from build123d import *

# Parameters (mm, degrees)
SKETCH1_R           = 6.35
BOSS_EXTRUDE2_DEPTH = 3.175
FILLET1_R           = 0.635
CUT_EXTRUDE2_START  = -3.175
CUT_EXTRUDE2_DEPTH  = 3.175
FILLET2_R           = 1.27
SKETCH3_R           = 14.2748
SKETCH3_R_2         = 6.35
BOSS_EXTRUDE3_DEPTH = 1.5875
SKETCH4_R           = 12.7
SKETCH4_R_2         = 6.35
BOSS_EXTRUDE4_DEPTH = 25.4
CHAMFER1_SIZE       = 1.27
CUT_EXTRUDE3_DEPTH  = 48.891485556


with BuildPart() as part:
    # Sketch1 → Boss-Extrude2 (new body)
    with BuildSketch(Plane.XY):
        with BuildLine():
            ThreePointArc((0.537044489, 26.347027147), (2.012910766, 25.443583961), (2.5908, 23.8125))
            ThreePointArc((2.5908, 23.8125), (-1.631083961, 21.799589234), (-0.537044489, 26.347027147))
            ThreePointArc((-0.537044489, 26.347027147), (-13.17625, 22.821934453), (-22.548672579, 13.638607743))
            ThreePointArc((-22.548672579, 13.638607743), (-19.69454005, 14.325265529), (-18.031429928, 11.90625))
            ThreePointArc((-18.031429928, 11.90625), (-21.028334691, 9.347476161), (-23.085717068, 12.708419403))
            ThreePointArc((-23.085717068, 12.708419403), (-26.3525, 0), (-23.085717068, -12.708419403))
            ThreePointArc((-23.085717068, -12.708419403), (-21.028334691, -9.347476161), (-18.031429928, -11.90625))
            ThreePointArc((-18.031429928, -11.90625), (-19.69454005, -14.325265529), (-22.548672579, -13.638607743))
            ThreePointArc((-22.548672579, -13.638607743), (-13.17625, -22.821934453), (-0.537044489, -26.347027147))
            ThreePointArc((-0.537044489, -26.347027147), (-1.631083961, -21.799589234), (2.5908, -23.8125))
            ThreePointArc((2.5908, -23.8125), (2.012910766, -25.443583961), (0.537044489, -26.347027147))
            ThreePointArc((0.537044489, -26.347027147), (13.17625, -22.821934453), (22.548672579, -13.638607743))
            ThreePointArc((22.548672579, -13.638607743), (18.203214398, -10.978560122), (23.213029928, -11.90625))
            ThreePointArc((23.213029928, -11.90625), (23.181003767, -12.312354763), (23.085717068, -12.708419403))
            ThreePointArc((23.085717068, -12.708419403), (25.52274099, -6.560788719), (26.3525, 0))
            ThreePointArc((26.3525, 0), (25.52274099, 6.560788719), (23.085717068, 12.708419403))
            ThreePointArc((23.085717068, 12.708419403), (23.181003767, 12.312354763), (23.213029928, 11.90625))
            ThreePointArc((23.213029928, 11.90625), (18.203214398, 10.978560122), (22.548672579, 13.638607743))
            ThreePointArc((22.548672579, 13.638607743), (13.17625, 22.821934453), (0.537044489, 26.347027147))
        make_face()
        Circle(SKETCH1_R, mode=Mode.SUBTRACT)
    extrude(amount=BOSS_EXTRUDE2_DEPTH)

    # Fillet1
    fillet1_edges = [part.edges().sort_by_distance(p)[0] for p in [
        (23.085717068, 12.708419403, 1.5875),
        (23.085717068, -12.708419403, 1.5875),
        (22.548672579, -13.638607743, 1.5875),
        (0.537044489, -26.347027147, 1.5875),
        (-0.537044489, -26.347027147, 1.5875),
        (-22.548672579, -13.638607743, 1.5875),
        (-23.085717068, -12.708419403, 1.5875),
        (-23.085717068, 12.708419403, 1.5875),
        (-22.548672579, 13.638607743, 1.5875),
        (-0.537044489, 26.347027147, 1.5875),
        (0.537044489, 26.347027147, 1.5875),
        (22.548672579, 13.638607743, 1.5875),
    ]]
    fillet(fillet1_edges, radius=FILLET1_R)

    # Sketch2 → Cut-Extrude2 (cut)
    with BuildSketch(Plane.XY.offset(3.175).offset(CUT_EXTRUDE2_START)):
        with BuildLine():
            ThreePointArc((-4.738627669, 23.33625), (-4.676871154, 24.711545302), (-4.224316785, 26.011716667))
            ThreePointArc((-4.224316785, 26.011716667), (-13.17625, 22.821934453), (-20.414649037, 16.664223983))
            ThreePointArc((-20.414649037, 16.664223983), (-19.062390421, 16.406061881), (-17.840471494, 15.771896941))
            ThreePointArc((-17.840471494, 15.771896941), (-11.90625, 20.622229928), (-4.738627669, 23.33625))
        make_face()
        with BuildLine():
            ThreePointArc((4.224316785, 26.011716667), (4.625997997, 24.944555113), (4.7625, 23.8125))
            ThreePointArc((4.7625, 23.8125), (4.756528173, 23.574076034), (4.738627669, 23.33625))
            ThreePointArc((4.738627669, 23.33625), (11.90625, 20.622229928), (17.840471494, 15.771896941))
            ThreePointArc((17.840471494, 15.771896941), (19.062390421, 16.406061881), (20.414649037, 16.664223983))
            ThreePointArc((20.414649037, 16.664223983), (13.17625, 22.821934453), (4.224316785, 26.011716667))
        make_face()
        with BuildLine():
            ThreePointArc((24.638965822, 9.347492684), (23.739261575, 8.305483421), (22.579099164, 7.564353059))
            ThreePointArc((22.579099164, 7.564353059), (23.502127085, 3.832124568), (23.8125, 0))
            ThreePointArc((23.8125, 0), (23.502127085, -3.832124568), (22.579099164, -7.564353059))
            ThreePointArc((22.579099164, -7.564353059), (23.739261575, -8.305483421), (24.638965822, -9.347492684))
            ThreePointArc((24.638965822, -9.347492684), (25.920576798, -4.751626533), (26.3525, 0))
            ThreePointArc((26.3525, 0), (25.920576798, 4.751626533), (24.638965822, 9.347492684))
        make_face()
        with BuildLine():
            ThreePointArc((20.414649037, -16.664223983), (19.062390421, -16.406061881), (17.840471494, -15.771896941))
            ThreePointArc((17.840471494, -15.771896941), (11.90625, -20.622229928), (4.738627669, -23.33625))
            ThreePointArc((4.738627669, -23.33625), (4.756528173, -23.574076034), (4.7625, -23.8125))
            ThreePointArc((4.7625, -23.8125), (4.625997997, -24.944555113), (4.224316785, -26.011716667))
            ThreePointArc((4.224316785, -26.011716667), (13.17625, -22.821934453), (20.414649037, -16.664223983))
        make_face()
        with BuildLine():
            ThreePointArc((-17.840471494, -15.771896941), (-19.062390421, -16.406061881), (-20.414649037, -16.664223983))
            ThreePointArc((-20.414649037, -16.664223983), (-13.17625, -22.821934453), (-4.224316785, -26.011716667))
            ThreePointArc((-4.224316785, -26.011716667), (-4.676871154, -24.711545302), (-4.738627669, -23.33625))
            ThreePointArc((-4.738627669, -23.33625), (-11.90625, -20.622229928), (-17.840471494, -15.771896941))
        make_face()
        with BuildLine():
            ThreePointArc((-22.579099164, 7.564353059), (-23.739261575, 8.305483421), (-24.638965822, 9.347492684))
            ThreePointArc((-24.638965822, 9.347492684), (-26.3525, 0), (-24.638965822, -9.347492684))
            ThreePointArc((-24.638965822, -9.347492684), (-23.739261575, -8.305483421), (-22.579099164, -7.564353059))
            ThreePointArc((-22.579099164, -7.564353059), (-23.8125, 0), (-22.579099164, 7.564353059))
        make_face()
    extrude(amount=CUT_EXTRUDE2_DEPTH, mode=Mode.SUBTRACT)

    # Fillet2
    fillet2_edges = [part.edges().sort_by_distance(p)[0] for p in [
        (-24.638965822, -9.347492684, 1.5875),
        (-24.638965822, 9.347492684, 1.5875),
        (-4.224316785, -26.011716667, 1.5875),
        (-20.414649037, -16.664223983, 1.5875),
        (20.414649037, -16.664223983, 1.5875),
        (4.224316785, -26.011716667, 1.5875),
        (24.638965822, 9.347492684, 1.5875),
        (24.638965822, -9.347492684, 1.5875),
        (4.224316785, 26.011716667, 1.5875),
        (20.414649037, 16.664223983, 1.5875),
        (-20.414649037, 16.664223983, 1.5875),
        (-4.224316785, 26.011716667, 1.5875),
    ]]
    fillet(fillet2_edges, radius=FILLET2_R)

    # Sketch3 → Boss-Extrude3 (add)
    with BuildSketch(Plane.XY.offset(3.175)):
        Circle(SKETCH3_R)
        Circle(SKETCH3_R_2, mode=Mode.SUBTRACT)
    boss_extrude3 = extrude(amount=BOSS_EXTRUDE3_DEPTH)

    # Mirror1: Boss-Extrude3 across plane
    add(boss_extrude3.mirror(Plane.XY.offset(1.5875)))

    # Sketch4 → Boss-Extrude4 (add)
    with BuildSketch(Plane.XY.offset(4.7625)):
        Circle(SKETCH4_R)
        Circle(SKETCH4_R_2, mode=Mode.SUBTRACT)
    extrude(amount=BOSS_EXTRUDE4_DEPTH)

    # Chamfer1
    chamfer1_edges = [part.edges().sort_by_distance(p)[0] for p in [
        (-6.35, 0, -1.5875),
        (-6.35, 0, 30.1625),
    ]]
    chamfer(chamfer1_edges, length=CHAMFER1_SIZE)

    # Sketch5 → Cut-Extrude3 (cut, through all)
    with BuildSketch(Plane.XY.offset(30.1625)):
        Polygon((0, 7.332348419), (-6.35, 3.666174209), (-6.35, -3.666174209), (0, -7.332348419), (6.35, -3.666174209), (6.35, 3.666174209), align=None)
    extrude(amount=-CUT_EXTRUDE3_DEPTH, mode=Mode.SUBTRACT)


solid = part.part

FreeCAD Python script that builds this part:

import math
import FreeCAD as App
import Part
import Sketcher

V = App.Vector
Q = App.Units.Quantity


def edges_at(feature, points):
    """Names of the edges that pass closest to the given points."""
    edges = feature.Shape.Edges
    near = lambda p: min(range(len(edges)), key=lambda i: edges[i].distToShape(Part.Vertex(*p))[0])
    return sorted({f"Edge{near(p) + 1}" for p in points})


def add_polygon(sketch, points):
    """Adds a closed chain of lines whose ends are joined by coincident constraints."""
    first, n = sketch.GeometryCount, len(points)
    for a, b in zip(points, points[1:] + points[:1]):
        sketch.addGeometry(Part.LineSegment(App.Vector(*a, 0), App.Vector(*b, 0)), False)
    for i in range(n):
        sketch.addConstraint(Sketcher.Constraint("Coincident", first + i, 2, first + (i + 1) % n, 1))

doc = App.newDocument("Part")
body = doc.addObject("PartDesign::Body", "Body")

sketch1 = body.newObject("Sketcher::SketchObject", "Sketch")
sketch1.AttachmentSupport = (doc.getObject("XY_Plane"), [""])
sketch1.MapMode = "FlatFace"
sketch1.addGeometry([
    Part.ArcOfCircle(Part.Circle(V(0, 23.8, 0), V(0, 0, 1), 2.6), math.radians(0), math.radians(78)),
    Part.ArcOfCircle(Part.Circle(V(0, 23.8, 0), V(0, 0, 1), 2.6), math.radians(102), math.radians(360)),
    Part.ArcOfCircle(Part.Circle(V(0, 0, 0), V(0, 0, 1), 26.4), math.radians(91), math.radians(149)),
    Part.ArcOfCircle(Part.Circle(V(-20.6, 11.9, 0), V(0, 0, 1), 2.6), math.radians(0), math.radians(138)),
    Part.ArcOfCircle(Part.Circle(V(-20.6, 11.9, 0), V(0, 0, 1), 2.6), math.radians(162), math.radians(360)),
    Part.ArcOfCircle(Part.Circle(V(0, 0, 0), V(0, 0, 1), 26.4), math.radians(151), math.radians(209)),
    Part.ArcOfCircle(Part.Circle(V(-20.6, -11.9, 0), V(0, 0, 1), 2.6), math.radians(0), math.radians(198)),
    Part.ArcOfCircle(Part.Circle(V(-20.6, -11.9, 0), V(0, 0, 1), 2.6), math.radians(-138), math.radians(0)),
    Part.ArcOfCircle(Part.Circle(V(0, 0, 0), V(0, 0, 1), 26.4), math.radians(-149), math.radians(-91)),
    Part.ArcOfCircle(Part.Circle(V(0, -23.8, 0), V(0, 0, 1), 2.6), math.radians(0), math.radians(258)),
    Part.ArcOfCircle(Part.Circle(V(0, -23.8, 0), V(0, 0, 1), 2.6), math.radians(-78), math.radians(0)),
    Part.ArcOfCircle(Part.Circle(V(0, 0, 0), V(0, 0, 1), 26.4), math.radians(-89), math.radians(-31)),
    Part.ArcOfCircle(Part.Circle(V(20.6, -11.9, 0), V(0, 0, 1), 2.6), math.radians(0), math.radians(318)),
    Part.ArcOfCircle(Part.Circle(V(20.6, -11.9, 0), V(0, 0, 1), 2.6), math.radians(-18.04), math.radians(0)),
    Part.ArcOfCircle(Part.Circle(V(0, 0, 0), V(0, 0, 1), 26.4), math.radians(-29), math.radians(0)),
    Part.ArcOfCircle(Part.Circle(V(0, 0, 0), V(0, 0, 1), 26.4), math.radians(0), math.radians(29)),
    Part.ArcOfCircle(Part.Circle(V(20.6, 11.9, 0), V(0, 0, 1), 2.6), math.radians(0), math.radians(18.04)),
    Part.ArcOfCircle(Part.Circle(V(20.6, 11.9, 0), V(0, 0, 1), 2.6), math.radians(42), math.radians(360)),
    Part.ArcOfCircle(Part.Circle(V(0, 0, 0), V(0, 0, 1), 26.4), math.radians(31), math.radians(89)),
    Part.Circle(V(0, 0, 0), V(0, 0, 1), 6.3),
], False)
sketch1.addConstraint([
    Sketcher.Constraint("Tangent", 0, 1, 1, 2),
    Sketcher.Constraint("Coincident", 1, 1, 2, 1),
    Sketcher.Constraint("Coincident", 2, 2, 3, 2),
    Sketcher.Constraint("Tangent", 3, 1, 4, 2),
    Sketcher.Constraint("Coincident", 4, 1, 5, 1),
    Sketcher.Constraint("Coincident", 5, 2, 6, 2),
    Sketcher.Constraint("Tangent", 6, 1, 7, 2),
    Sketcher.Constraint("Coincident", 7, 1, 8, 1),
    Sketcher.Constraint("Coincident", 8, 2, 9, 2),
    Sketcher.Constraint("Tangent", 9, 1, 10, 2),
    Sketcher.Constraint("Coincident", 10, 1, 11, 1),
    Sketcher.Constraint("Coincident", 11, 2, 12, 2),
    Sketcher.Constraint("Tangent", 12, 1, 13, 2),
    Sketcher.Constraint("Coincident", 13, 1, 14, 1),
    Sketcher.Constraint("Tangent", 14, 2, 15, 1),
    Sketcher.Constraint("Coincident", 15, 2, 16, 2),
    Sketcher.Constraint("Tangent", 16, 1, 17, 2),
    Sketcher.Constraint("Coincident", 17, 1, 18, 1),
    Sketcher.Constraint("Coincident", 18, 2, 0, 2),
    Sketcher.Constraint("Coincident", 2, 3, -1, 1),
    Sketcher.Constraint("Coincident", 5, 3, -1, 1),
    Sketcher.Constraint("Coincident", 8, 3, -1, 1),
    Sketcher.Constraint("Coincident", 11, 3, -1, 1),
    Sketcher.Constraint("Coincident", 14, 3, -1, 1),
    Sketcher.Constraint("Coincident", 18, 3, -1, 1),
    Sketcher.Constraint("Coincident", 19, 3, -1, 1),
    Sketcher.Constraint("Equal", 0, 1),
    Sketcher.Constraint("Equal", 1, 3),
    Sketcher.Constraint("Equal", 3, 4),
    Sketcher.Constraint("Equal", 2, 5),
    Sketcher.Constraint("Equal", 4, 6),
    Sketcher.Constraint("Equal", 6, 7),
    Sketcher.Constraint("Equal", 5, 8),
    Sketcher.Constraint("Equal", 7, 9),
    Sketcher.Constraint("Equal", 9, 10),
    Sketcher.Constraint("Equal", 8, 11),
    Sketcher.Constraint("Equal", 10, 12),
    Sketcher.Constraint("Equal", 12, 13),
    Sketcher.Constraint("Equal", 11, 14),
    Sketcher.Constraint("Equal", 14, 15),
    Sketcher.Constraint("Equal", 13, 16),
    Sketcher.Constraint("Equal", 16, 17),
    Sketcher.Constraint("Equal", 15, 18),
    Sketcher.Constraint("Symmetric", 0, 3, 9, 3, -1, 1),
    Sketcher.Constraint("Symmetric", 3, 3, 12, 3, -1, 1),
    Sketcher.Constraint("Symmetric", 6, 3, 16, 3, -1, 1),
    Sketcher.Constraint("Symmetric", 6, 3, 12, 3, -2),
    Sketcher.Constraint("Symmetric", 0, 1, 9, 1, -1),
    Sketcher.Constraint("PointOnObject", 14, 2, -1),
    Sketcher.Constraint("Horizontal", 1, 3, 0, 1),
    Sketcher.Constraint("Horizontal", 17, 3, 3, 1),
    Sketcher.Constraint("Horizontal", 13, 3, 6, 1),
    Sketcher.Constraint("Horizontal", 6, 1, 12, 1),
    Sketcher.Constraint("Horizontal", 3, 1, 16, 1),
    Sketcher.Constraint("Diameter", 19, Q("0.5 in")),
    Sketcher.Constraint("Radius", 0, Q("0.102 in")),
    Sketcher.Constraint("Radius", 2, Q("1.0375 in")),
    Sketcher.Constraint("DistanceY", -1, 1, 0, 3, Q("0.9375 in")),
    Sketcher.Constraint("DistanceY", -1, 1, 3, 3, Q("0.46875 in")),
    Sketcher.Constraint("DistanceX", 3, 3, -1, 1, 20.62223),
])
pad1 = body.newObject("PartDesign::Pad", "Pad")
pad1.Profile = sketch1
pad1.Length = Q("0.125 in")
doc.recompute()

fillet = body.newObject("PartDesign::Fillet", "Fillet")
fillet.Base = (pad1, edges_at(pad1, [
    (23.086, 12.708, 1.587),
    (23.086, -12.708, 1.587),
    (22.549, -13.639, 1.587),
    (0.537, -26.347, 1.587),
    (-0.537, -26.347, 1.587),
    (-22.549, -13.639, 1.587),
    (-23.086, -12.708, 1.587),
    (-23.086, 12.708, 1.587),
    (-22.549, 13.639, 1.587),
    (-0.537, 26.347, 1.587),
    (0.537, 26.347, 1.587),
    (22.549, 13.639, 1.587),
]))
fillet.Radius = Q("0.025 in")

sketch2 = body.newObject("Sketcher::SketchObject", "Sketch001")
sketch2.AttachmentSupport = (doc.getObject("XY_Plane"), [""])
sketch2.MapMode = "FlatFace"
sketch2.addGeometry([
    Part.ArcOfCircle(Part.Circle(V(0, 23.81, 0), V(0, 0, 1), 4.76), math.radians(152), math.radians(186)),
    Part.ArcOfCircle(Part.Circle(V(0, 0, 0), V(0, 0, 1), 26.35), math.radians(99), math.radians(141)),
    Part.ArcOfCircle(Part.Circle(V(-20.62, 11.91, 0), V(0, 0, 1), 4.76), math.radians(54), math.radians(88)),
    Part.ArcOfCircle(Part.Circle(V(0, 0, 0), V(0, 0, 1), 23.81), math.radians(101), math.radians(139)),
    Part.ArcOfCircle(Part.Circle(V(0, 23.81, 0), V(0, 0, 1), 4.76), math.radians(0), math.radians(28)),
    Part.ArcOfCircle(Part.Circle(V(0, 23.81, 0), V(0, 0, 1), 4.76), math.radians(-5.74), math.radians(0)),
    Part.ArcOfCircle(Part.Circle(V(0, 0, 0), V(0, 0, 1), 23.81), math.radians(41), math.radians(79)),
    Part.ArcOfCircle(Part.Circle(V(20.62, 11.91, 0), V(0, 0, 1), 4.76), math.radians(92), math.radians(126)),
    Part.ArcOfCircle(Part.Circle(V(0, 0, 0), V(0, 0, 1), 26.35), math.radians(39), math.radians(81)),
    Part.ArcOfCircle(Part.Circle(V(20.62, 11.91, 0), V(0, 0, 1), 4.76), math.radians(-66), math.radians(-32)),
    Part.ArcOfCircle(Part.Circle(V(0, 0, 0), V(0, 0, 1), 23.81), math.radians(0), math.radians(18.52)),
    Part.ArcOfCircle(Part.Circle(V(0, 0, 0), V(0, 0, 1), 23.81), math.radians(-18.52), math.radians(0)),
    Part.ArcOfCircle(Part.Circle(V(20.62, -11.91, 0), V(0, 0, 1), 4.76), math.radians(32), math.radians(66)),
    Part.ArcOfCircle(Part.Circle(V(0, 0, 0), V(0, 0, 1), 26.35), math.radians(-21), math.radians(0)),
    Part.ArcOfCircle(Part.Circle(V(0, 0, 0), V(0, 0, 1), 26.35), math.radians(0), math.radians(21)),
    Part.ArcOfCircle(Part.Circle(V(20.62, -11.91, 0), V(0, 0, 1), 4.76), math.radians(-126), math.radians(-92)),
    Part.ArcOfCircle(Part.Circle(V(0, 0, 0), V(0, 0, 1), 23.81), math.radians(-79), math.radians(-41)),
    Part.ArcOfCircle(Part.Circle(V(0, -23.81, 0), V(0, 0, 1), 4.76), math.radians(0), math.radians(5.74)),
    Part.ArcOfCircle(Part.Circle(V(0, -23.81, 0), V(0, 0, 1), 4.76), math.radians(-28), math.radians(0)),
    Part.ArcOfCircle(Part.Circle(V(0, 0, 0), V(0, 0, 1), 26.35), math.radians(-81), math.radians(-39)),
    Part.ArcOfCircle(Part.Circle(V(-20.62, -11.91, 0), V(0, 0, 1), 4.76), math.radians(-88), math.radians(-54)),
    Part.ArcOfCircle(Part.Circle(V(0, 0, 0), V(0, 0, 1), 26.35), math.radians(-141), math.radians(-99)),
    Part.ArcOfCircle(Part.Circle(V(0, -23.81, 0), V(0, 0, 1), 4.76), math.radians(174), math.radians(208)),
    Part.ArcOfCircle(Part.Circle(V(0, 0, 0), V(0, 0, 1), 23.81), math.radians(-139), math.radians(-101)),
    Part.ArcOfCircle(Part.Circle(V(-20.62, 11.91, 0), V(0, 0, 1), 4.76), math.radians(-148), math.radians(-114)),
    Part.ArcOfCircle(Part.Circle(V(0, 0, 0), V(0, 0, 1), 26.35), math.radians(159), math.radians(201)),
    Part.ArcOfCircle(Part.Circle(V(-20.62, -11.91, 0), V(0, 0, 1), 4.76), math.radians(114), math.radians(148)),
    Part.ArcOfCircle(Part.Circle(V(0, 0, 0), V(0, 0, 1), 23.81), math.radians(161), math.radians(199)),
], False)
sketch2.addConstraint([
    Sketcher.Constraint("Coincident", 0, 1, 1, 1),
    Sketcher.Constraint("Coincident", 1, 2, 2, 2),
    Sketcher.Constraint("Coincident", 2, 1, 3, 2),
    Sketcher.Constraint("Coincident", 3, 1, 0, 2),
    Sketcher.Constraint("Tangent", 4, 1, 5, 2),
    Sketcher.Constraint("Coincident", 5, 1, 6, 2),
    Sketcher.Constraint("Coincident", 6, 1, 7, 2),
    Sketcher.Constraint("Coincident", 7, 1, 8, 1),
    Sketcher.Constraint("Coincident", 8, 2, 4, 2),
    Sketcher.Constraint("Coincident", 9, 1, 10, 2),
    Sketcher.Constraint("Tangent", 10, 1, 11, 2),
    Sketcher.Constraint("Coincident", 11, 1, 12, 2),
    Sketcher.Constraint("Coincident", 12, 1, 13, 1),
    Sketcher.Constraint("Tangent", 13, 2, 14, 1),
    Sketcher.Constraint("Coincident", 14, 2, 9, 2),
    Sketcher.Constraint("Coincident", 15, 1, 16, 2),
    Sketcher.Constraint("Coincident", 16, 1, 17, 2),
    Sketcher.Constraint("Tangent", 17, 1, 18, 2),
    Sketcher.Constraint("Coincident", 18, 1, 19, 1),
    Sketcher.Constraint("Coincident", 19, 2, 15, 2),
    Sketcher.Constraint("Coincident", 20, 1, 21, 1),
    Sketcher.Constraint("Coincident", 21, 2, 22, 2),
    Sketcher.Constraint("Coincident", 22, 1, 23, 2),
    Sketcher.Constraint("Coincident", 23, 1, 20, 2),
    Sketcher.Constraint("Coincident", 24, 1, 25, 1),
    Sketcher.Constraint("Coincident", 25, 2, 26, 2),
    Sketcher.Constraint("Coincident", 26, 1, 27, 2),
    Sketcher.Constraint("Coincident", 27, 1, 24, 2),
    Sketcher.Constraint("Coincident", 1, 3, -1, 1),
    Sketcher.Constraint("Coincident", 3, 3, -1, 1),
    Sketcher.Constraint("Coincident", 6, 3, -1, 1),
    Sketcher.Constraint("Coincident", 8, 3, -1, 1),
    Sketcher.Constraint("Coincident", 10, 3, -1, 1),
    Sketcher.Constraint("Coincident", 13, 3, -1, 1),
    Sketcher.Constraint("Coincident", 16, 3, -1, 1),
    Sketcher.Constraint("Coincident", 19, 3, -1, 1),
    Sketcher.Constraint("Coincident", 21, 3, -1, 1),
    Sketcher.Constraint("Coincident", 23, 3, -1, 1),
    Sketcher.Constraint("Coincident", 25, 3, -1, 1),
    Sketcher.Constraint("Coincident", 27, 3, -1, 1),
    Sketcher.Constraint("Coincident", 4, 3, 0, 3),
    Sketcher.Constraint("Coincident", 9, 3, 7, 3),
    Sketcher.Constraint("Coincident", 15, 3, 12, 3),
    Sketcher.Constraint("Coincident", 22, 3, 17, 3),
    Sketcher.Constraint("Coincident", 24, 3, 2, 3),
    Sketcher.Constraint("Coincident", 26, 3, 20, 3),
    Sketcher.Constraint("Equal", 0, 2),
    Sketcher.Constraint("Equal", 2, 4),
    Sketcher.Constraint("Equal", 4, 5),
    Sketcher.Constraint("Equal", 3, 6),
    Sketcher.Constraint("Equal", 5, 7),
    Sketcher.Constraint("Equal", 1, 8),
    Sketcher.Constraint("Equal", 7, 9),
    Sketcher.Constraint("Equal", 6, 10),
    Sketcher.Constraint("Equal", 10, 11),
    Sketcher.Constraint("Equal", 9, 12),
    Sketcher.Constraint("Equal", 8, 13),
    Sketcher.Constraint("Equal", 13, 14),
    Sketcher.Constraint("Equal", 12, 15),
    Sketcher.Constraint("Equal", 11, 16),
    Sketcher.Constraint("Equal", 15, 17),
    Sketcher.Constraint("Equal", 17, 18),
    Sketcher.Constraint("Equal", 14, 19),
    Sketcher.Constraint("Equal", 18, 20),
    Sketcher.Constraint("Equal", 19, 21),
    Sketcher.Constraint("Equal", 20, 22),
    Sketcher.Constraint("Equal", 16, 23),
    Sketcher.Constraint("Equal", 22, 24),
    Sketcher.Constraint("Equal", 21, 25),
    Sketcher.Constraint("Equal", 24, 26),
    Sketcher.Constraint("Equal", 23, 27),
    Sketcher.Constraint("Symmetric", 2, 3, 12, 3, -1, 1),
    Sketcher.Constraint("Symmetric", 0, 3, 17, 3, -1, 1),
    Sketcher.Constraint("Symmetric", 7, 3, 20, 3, -1, 1),
    Sketcher.Constraint("Symmetric", 2, 3, 7, 3, -2),
    Sketcher.Constraint("Symmetric", 4, 1, 17, 1, -1),
    Sketcher.Constraint("PointOnObject", 10, 1, -1),
    Sketcher.Constraint("PointOnObject", 13, 2, -1),
    Sketcher.Constraint("Horizontal", 5, 3, 4, 1),
    Sketcher.Constraint("Radius", 0, Q("0.1875 in")),
    Sketcher.Constraint("Radius", 3, Q("0.9375 in")),
    Sketcher.Constraint("Radius", 1, Q("1.0375 in")),
    Sketcher.Constraint("DistanceY", 16, 1, 12, 3, Q("0.45 in")),
    Sketcher.Constraint("DistanceY", -1, 1, 0, 3, Q("0.9375 in")),
    Sketcher.Constraint("DistanceX", -1, 1, 9, 1, 22.579099),
])
pocket1 = body.newObject("PartDesign::Pocket", "Pocket")
pocket1.Profile = sketch2
pocket1.Length = Q("0.125 in")
pocket1.Reversed = True
doc.recompute()

fillet2 = body.newObject("PartDesign::Fillet", "Fillet001")
fillet2.Base = (pocket1, edges_at(pocket1, [
    (-24.639, -9.347, 1.587),
    (-24.639, 9.347, 1.587),
    (-4.224, -26.012, 1.587),
    (-20.415, -16.664, 1.587),
    (20.415, -16.664, 1.587),
    (4.224, -26.012, 1.587),
    (24.639, 9.347, 1.587),
    (24.639, -9.347, 1.587),
    (4.224, 26.012, 1.587),
    (20.415, 16.664, 1.587),
    (-20.415, 16.664, 1.587),
    (-4.224, 26.012, 1.587),
]))
fillet2.Radius = Q("0.05 in")

sketch3 = body.newObject("Sketcher::SketchObject", "Sketch002")
sketch3.AttachmentSupport = (doc.getObject("XY_Plane"), [""])
sketch3.MapMode = "FlatFace"
sketch3.AttachmentOffset = App.Placement(V(0, 0, 0.125 * 25.4), App.Rotation())
sketch3.addGeometry([
    Part.Circle(V(0, 0, 0), V(0, 0, 1), 14),
    Part.Circle(V(0, 0, 0), V(0, 0, 1), 6),
], False)
sketch3.addConstraint([
    Sketcher.Constraint("Coincident", 0, 3, -1, 1),
    Sketcher.Constraint("Coincident", 1, 3, -1, 1),
    Sketcher.Constraint("Diameter", 1, Q("0.5 in")),
    Sketcher.Constraint("Diameter", 0, Q("1.124 in")),
])
pad2 = body.newObject("PartDesign::Pad", "Pad001")
pad2.Profile = sketch3
pad2.Length = Q("0.0625 in")
doc.recompute()

datumplane = body.newObject("PartDesign::Plane", "DatumPlane")
datumplane.AttachmentSupport = (doc.getObject("XY_Plane"), [""])
datumplane.MapMode = "FlatFace"
datumplane.AttachmentOffset = App.Placement(V(0, 0, 0.0625 * 25.4), App.Rotation())
mirrored = body.newObject("PartDesign::Mirrored", "Mirrored")
mirrored.Originals = [pad2]
mirrored.MirrorPlane = (datumplane, [""])
body.Tip = mirrored

sketch4 = body.newObject("Sketcher::SketchObject", "Sketch003")
sketch4.AttachmentSupport = (doc.getObject("XY_Plane"), [""])
sketch4.MapMode = "FlatFace"
sketch4.AttachmentOffset = App.Placement(V(0, 0, 0.1875 * 25.4), App.Rotation())
sketch4.addGeometry([
    Part.Circle(V(0, 0, 0), V(0, 0, 1), 13),
    Part.Circle(V(0, 0, 0), V(0, 0, 1), 6),
], False)
sketch4.addConstraint([
    Sketcher.Constraint("Coincident", 0, 3, -1, 1),
    Sketcher.Constraint("Coincident", 1, 3, -1, 1),
    Sketcher.Constraint("Diameter", 0, Q("1 in")),
    Sketcher.Constraint("Diameter", 1, Q("0.5 in")),
])
pad3 = body.newObject("PartDesign::Pad", "Pad002")
pad3.Profile = sketch4
pad3.Length = Q("1 in")
doc.recompute()

chamfer = body.newObject("PartDesign::Chamfer", "Chamfer")
chamfer.Base = (pad3, edges_at(pad3, [(-6.35, 0, -1.587), (-6.35, 0, 30.163)]))
chamfer.Size = Q("0.05 in")

sketch5 = body.newObject("Sketcher::SketchObject", "Sketch004")
sketch5.AttachmentSupport = (doc.getObject("XY_Plane"), [""])
sketch5.MapMode = "FlatFace"
sketch5.AttachmentOffset = App.Placement(V(0, 0, 1.1875 * 25.4), App.Rotation())
add_polygon(sketch5, [(0, 7), (-6, 4), (-6, -4), (0, -7), (6, -4), (6, 4)])
sketch5.addConstraint([
    Sketcher.Constraint("Vertical", 1),
    Sketcher.Constraint("Vertical", 4),
    Sketcher.Constraint("Symmetric", 0, 2, 3, 2, -1, 1),
    Sketcher.Constraint("Symmetric", 2, 2, 5, 2, -1, 1),
    Sketcher.Constraint("PointOnObject", 2, 2, -2),
    Sketcher.Constraint("Parallel", 2, 5),
    Sketcher.Constraint("Horizontal", 1, 2, 3, 2),
    Sketcher.Constraint("Angle", 0, Q("-150 deg")),
    Sketcher.Constraint("DistanceX", 1, 2, 3, 2, Q("0.5 in")),
    Sketcher.Constraint("DistanceY", 1, 2, 1, 1, 7.332348),
])
pocket2 = body.newObject("PartDesign::Pocket", "Pocket001")
pocket2.Profile = sketch5
pocket2.Type = "ThroughAll"

doc.recompute()
